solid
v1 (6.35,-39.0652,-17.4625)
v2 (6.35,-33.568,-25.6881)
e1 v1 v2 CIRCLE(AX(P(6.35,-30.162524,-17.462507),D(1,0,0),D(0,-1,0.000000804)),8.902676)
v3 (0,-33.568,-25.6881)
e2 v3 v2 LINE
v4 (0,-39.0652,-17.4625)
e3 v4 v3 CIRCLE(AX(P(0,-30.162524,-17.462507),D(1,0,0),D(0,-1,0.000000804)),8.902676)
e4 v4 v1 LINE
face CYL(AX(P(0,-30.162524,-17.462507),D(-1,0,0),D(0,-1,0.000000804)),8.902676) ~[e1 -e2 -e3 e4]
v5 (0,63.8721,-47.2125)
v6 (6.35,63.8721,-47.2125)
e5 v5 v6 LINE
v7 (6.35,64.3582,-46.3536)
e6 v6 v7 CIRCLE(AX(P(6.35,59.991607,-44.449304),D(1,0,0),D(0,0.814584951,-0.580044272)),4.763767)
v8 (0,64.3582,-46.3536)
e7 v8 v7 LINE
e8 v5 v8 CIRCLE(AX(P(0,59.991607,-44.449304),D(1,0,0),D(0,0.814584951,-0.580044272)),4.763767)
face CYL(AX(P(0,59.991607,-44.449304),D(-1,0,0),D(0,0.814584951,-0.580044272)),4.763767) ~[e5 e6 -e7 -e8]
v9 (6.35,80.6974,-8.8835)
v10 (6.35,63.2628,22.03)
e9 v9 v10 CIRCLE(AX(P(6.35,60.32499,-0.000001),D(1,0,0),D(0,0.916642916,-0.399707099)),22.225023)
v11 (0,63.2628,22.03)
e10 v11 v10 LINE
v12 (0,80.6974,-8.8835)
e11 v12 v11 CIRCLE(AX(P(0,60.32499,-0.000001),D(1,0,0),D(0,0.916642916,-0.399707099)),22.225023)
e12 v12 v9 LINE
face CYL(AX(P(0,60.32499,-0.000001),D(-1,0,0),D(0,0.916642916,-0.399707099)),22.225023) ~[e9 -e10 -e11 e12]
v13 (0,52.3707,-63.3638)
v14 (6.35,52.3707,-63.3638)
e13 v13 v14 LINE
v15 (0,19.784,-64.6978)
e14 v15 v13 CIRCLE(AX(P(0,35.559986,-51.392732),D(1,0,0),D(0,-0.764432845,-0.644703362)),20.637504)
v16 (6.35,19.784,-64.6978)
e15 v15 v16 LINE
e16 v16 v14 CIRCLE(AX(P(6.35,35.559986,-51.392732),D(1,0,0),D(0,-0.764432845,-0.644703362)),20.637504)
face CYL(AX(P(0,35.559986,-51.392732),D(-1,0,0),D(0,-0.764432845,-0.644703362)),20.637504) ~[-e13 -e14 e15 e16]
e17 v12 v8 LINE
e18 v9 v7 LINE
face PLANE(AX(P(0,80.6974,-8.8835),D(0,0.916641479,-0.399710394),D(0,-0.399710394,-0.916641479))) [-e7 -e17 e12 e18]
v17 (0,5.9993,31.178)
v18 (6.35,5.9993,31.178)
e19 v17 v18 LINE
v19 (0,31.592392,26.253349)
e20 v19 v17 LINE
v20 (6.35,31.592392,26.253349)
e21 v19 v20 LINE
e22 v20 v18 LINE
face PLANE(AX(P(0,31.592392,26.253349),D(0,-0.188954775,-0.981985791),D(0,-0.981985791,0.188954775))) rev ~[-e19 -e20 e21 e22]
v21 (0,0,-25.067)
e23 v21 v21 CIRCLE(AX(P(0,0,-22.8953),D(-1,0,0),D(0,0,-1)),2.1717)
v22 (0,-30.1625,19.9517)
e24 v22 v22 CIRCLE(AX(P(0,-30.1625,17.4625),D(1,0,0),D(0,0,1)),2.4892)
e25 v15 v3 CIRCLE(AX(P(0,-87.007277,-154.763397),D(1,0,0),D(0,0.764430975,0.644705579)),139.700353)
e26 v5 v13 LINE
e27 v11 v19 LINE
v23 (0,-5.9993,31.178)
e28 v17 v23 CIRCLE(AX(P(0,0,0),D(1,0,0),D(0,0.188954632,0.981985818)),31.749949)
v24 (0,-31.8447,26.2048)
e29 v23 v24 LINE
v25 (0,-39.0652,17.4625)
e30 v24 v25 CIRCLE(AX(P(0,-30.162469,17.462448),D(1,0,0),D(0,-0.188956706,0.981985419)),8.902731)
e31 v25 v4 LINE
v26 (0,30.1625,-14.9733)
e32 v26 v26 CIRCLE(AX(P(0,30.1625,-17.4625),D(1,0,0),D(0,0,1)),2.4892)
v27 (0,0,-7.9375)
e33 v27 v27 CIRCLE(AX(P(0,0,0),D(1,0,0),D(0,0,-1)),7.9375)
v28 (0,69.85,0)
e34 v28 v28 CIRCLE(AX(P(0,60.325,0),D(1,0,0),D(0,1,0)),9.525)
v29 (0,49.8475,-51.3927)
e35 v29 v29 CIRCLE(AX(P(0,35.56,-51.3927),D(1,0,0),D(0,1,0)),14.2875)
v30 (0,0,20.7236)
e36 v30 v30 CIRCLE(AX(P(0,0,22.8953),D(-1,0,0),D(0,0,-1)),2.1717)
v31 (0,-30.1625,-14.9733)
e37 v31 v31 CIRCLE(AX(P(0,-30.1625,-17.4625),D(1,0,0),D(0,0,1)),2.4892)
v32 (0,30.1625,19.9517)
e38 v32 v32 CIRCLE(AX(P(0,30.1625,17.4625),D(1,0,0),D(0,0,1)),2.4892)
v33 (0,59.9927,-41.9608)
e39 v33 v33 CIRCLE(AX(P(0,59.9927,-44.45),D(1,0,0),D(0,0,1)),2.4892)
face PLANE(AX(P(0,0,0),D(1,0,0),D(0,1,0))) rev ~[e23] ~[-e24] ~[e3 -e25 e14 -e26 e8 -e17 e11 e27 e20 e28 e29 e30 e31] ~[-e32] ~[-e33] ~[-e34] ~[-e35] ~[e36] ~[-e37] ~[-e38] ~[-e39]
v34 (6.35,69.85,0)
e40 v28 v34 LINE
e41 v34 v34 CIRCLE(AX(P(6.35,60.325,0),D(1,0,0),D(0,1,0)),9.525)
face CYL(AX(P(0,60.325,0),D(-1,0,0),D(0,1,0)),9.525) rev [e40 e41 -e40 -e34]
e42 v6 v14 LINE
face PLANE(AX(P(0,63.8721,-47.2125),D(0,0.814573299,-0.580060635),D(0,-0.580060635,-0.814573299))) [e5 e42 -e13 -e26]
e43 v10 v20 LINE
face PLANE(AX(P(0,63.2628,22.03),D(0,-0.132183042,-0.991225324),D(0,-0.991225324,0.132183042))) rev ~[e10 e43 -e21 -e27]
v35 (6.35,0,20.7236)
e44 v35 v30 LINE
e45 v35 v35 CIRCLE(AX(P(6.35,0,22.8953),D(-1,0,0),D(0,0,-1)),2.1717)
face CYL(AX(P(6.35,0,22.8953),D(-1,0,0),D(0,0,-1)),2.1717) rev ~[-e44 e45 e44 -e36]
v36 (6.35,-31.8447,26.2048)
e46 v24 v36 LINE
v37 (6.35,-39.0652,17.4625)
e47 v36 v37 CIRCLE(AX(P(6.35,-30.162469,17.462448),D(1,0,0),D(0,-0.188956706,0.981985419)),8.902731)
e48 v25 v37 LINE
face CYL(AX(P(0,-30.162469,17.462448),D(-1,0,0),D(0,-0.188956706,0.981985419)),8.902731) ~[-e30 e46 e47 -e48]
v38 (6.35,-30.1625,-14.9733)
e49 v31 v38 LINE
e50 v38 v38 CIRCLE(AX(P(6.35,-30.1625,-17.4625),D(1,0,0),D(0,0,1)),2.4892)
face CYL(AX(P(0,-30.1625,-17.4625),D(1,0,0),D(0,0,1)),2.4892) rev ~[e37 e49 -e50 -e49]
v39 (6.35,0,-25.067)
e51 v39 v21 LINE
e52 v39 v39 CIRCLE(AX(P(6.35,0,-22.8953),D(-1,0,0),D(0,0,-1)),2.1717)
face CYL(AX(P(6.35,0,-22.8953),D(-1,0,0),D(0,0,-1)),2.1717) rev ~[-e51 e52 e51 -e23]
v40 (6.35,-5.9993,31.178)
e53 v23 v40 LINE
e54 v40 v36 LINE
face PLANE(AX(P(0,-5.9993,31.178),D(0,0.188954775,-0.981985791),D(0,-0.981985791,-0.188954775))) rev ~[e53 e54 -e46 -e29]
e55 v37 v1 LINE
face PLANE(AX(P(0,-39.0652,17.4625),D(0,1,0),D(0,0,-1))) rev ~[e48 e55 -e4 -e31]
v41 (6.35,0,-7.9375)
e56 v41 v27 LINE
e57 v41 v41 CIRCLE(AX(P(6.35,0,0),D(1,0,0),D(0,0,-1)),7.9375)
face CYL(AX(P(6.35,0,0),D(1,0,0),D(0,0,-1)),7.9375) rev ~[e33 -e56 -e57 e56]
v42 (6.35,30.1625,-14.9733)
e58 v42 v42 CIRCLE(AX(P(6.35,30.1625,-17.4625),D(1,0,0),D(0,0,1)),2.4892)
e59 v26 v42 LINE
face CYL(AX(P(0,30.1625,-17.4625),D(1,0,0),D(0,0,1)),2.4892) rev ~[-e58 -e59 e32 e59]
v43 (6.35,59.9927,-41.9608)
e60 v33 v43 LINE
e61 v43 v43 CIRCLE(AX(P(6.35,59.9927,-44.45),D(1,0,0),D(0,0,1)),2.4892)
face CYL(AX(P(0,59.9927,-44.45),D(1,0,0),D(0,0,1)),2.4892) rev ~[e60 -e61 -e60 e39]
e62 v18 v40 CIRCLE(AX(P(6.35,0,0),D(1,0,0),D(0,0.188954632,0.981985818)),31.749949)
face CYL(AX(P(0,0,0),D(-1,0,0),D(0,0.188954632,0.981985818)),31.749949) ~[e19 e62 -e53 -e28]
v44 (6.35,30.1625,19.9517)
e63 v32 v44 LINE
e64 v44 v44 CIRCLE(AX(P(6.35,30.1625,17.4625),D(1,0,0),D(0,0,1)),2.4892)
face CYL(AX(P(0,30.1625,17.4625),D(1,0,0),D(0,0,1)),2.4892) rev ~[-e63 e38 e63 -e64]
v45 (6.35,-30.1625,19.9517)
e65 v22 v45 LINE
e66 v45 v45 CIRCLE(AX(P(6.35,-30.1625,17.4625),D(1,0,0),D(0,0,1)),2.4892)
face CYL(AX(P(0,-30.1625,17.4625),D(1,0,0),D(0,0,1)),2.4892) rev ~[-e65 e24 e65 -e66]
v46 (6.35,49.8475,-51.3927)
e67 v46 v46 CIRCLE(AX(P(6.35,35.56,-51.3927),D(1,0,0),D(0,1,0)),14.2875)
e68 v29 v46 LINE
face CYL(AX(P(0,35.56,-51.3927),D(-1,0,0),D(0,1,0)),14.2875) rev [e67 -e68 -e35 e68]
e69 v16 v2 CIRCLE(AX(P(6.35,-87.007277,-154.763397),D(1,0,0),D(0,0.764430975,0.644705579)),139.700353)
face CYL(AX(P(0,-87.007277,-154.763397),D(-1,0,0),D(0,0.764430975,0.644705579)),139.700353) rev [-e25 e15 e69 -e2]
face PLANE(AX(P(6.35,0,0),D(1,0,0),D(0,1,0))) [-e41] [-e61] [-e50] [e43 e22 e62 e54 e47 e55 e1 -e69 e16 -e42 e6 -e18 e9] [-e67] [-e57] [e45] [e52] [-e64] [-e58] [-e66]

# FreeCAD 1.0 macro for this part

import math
import FreeCAD as App
import Part
import Sketcher
Q = App.Units.Quantity

doc = App.newDocument("Part")
body = doc.addObject("PartDesign::Body", "Body")

# Sketch on YZ plane
sketch1 = body.newObject("Sketcher::SketchObject", "Sketch")
sketch1.AttachmentSupport = (doc.getObject("YZ_Plane"), [""])
sketch1.MapMode = "FlatFace"
sketch1.addGeometry([
    Part.ArcOfCircle(Part.Circle(App.Vector(60.3, 0, 0), App.Vector(0, 0, 1), 22.2), math.radians(-24), math.radians(82)),  # 0
    Part.LineSegment(App.Vector(63.3, 22, 0), App.Vector(31.6, 26.3, 0)),  # 1
    Part.LineSegment(App.Vector(31.6, 26.3, 0), App.Vector(6, 31.2, 0)),  # 2
    Part.ArcOfCircle(Part.Circle(App.Vector(0, 0, 0), App.Vector(0, 0, 1), 31.7), math.radians(79), math.radians(101)),  # 3
    Part.LineSegment(App.Vector(-6, 31.2, 0), App.Vector(-31.8, 26.2, 0)),  # 4
    Part.ArcOfCircle(Part.Circle(App.Vector(-30.2, 17.5, 0), App.Vector(0, 0, 1), 8.9), math.radians(101), math.radians(180)),  # 5
    Part.LineSegment(App.Vector(-39.1, 17.5, 0), App.Vector(-39.1, -17.5, 0)),  # 6
    Part.ArcOfCircle(Part.Circle(App.Vector(-30.2, -17.5, 0), App.Vector(0, 0, 1), 8.9), math.radians(180), math.radians(248)),  # 7
    Part.ArcOfCircle(Part.Circle(App.Vector(-87, -154.8, 0), App.Vector(0, 0, 1), 139.7), math.radians(40), math.radians(68)),  # 8
    Part.ArcOfCircle(Part.Circle(App.Vector(35.6, -51.4, 0), App.Vector(0, 0, 1), 20.6), math.radians(-140), math.radians(-35)),  # 9
    Part.LineSegment(App.Vector(52.4, -63.4, 0), App.Vector(63.9, -47.2, 0)),  # 10
    Part.ArcOfCircle(Part.Circle(App.Vector(60, -44.4, 0), App.Vector(0, 0, 1), 4.8), math.radians(-35.45), math.radians(-23.56)),  # 11
    Part.LineSegment(App.Vector(64.4, -46.4, 0), App.Vector(80.7, -8.9, 0)),  # 12
    Part.Circle(App.Vector(35.6, -51.4, 0), App.Vector(0, 0, 1), 14.3),  # 13
    Part.Circle(App.Vector(60.3, 0, 0), App.Vector(0, 0, 1), 9.5),  # 14
], False)
sketch1.addConstraint([
    Sketcher.Constraint("Tangent", 0, 2, 1, 1),
    Sketcher.Constraint("Coincident", 1, 2, 2, 1),
    Sketcher.Constraint("Tangent", 2, 2, 3, 1),
    Sketcher.Constraint("Tangent", 3, 2, 4, 1),
    Sketcher.Constraint("Tangent", 4, 2, 5, 1),
    Sketcher.Constraint("Tangent", 5, 2, 6, 1),
    Sketcher.Constraint("Tangent", 6, 2, 7, 1),
    Sketcher.Constraint("Tangent", 7, 2, 8, 2),
    Sketcher.Constraint("Tangent", 8, 1, 9, 1),
    Sketcher.Constraint("Tangent", 9, 2, 10, 1),
    Sketcher.Constraint("Tangent", 10, 2, 11, 1),
    Sketcher.Constraint("Tangent", 11, 2, 12, 1),
    Sketcher.Constraint("Tangent", 12, 2, 0, 1),
    Sketcher.Constraint("Vertical", 6),
    Sketcher.Constraint("Coincident", 3, 3, -1, 1),
    Sketcher.Constraint("Coincident", 13, 3, 9, 3),
    Sketcher.Constraint("Coincident", 14, 3, 0, 3),
    Sketcher.Constraint("Equal", 5, 7),
    Sketcher.Constraint("PointOnObject", 0, 3, -1),
    Sketcher.Constraint("Horizontal", 2, 2, 3, 2),
    Sketcher.Constraint("Radius", 8, Q("5.5 in")),
    Sketcher.Constraint("Diameter", 14, Q("0.75 in")),
    Sketcher.Constraint("Radius", 3, Q("1.25 in")),
    Sketcher.Constraint("Diameter", 13, Q("1.125 in")),
    Sketcher.Constraint("Radius", 0, Q("0.875 in")),
    Sketcher.Constraint("Radius", 9, Q("0.8125 in")),
    Sketcher.Constraint("DistanceX", -1, 1, 9, 3, Q("1.4 in")),
    Sketcher.Constraint("Radius", 5, Q("0.3505 in")),
    Sketcher.Constraint("DistanceY", 6, 2, 6, 1, Q("1.375 in")),
    Sketcher.Constraint("Angle", 12, Q("66.44 deg")),
    Sketcher.Constraint("Radius", 11, Q("4.7638 mm")),
    Sketcher.Constraint("DistanceX", -1, 1, 0, 3, Q("2.375 in")),
    Sketcher.Constraint("DistanceX", 5, 3, -1, 1, Q("1.1875 in")),
    Sketcher.Constraint("DistanceY", -1, 1, 5, 3, Q("0.6875 in")),
    Sketcher.Constraint("Distance", 1, Q("1.2579 in")),
    Sketcher.Constraint("DistanceY", 8, 3, 9, 3, Q("4.0697 in")),
    Sketcher.Constraint("DistanceY", 11, 3, 0, 2, Q("2.6173 in")),
])
pad1 = body.newObject("PartDesign::Pad", "Pad")
pad1.Profile = sketch1
pad1.Length = Q("0.25 in")

# Sketch on YZ plane
sketch2 = body.newObject("Sketcher::SketchObject", "Sketch001")
sketch2.AttachmentSupport = (doc.getObject("YZ_Plane"), [""])
sketch2.MapMode = "FlatFace"
sketch2.addGeometry([
    Part.Circle(App.Vector(60, -44.5, 0), App.Vector(0, 0, 1), 2.5),  # 0
    Part.Circle(App.Vector(30.2, 17.5, 0), App.Vector(0, 0, 1), 2.5),  # 1
    Part.Circle(App.Vector(30.2, -17.5, 0), App.Vector(0, 0, 1), 2.5),  # 2
    Part.Circle(App.Vector(-30.2, -17.5, 0), App.Vector(0, 0, 1), 2.5),  # 3
    Part.Circle(App.Vector(-30.2, 17.5, 0), App.Vector(0, 0, 1), 2.5),  # 4
], False)
sketch2.addConstraint([
    Sketcher.Constraint("Equal", 0, 1),
    Sketcher.Constraint("Equal", 1, 2),
    Sketcher.Constraint("Equal", 2, 3),
    Sketcher.Constraint("Equal", 3, 4),
    Sketcher.Constraint("Symmetric", 1, 3, 3, 3, -1, 1),
    Sketcher.Constraint("Symmetric", 2, 3, 4, 3, -1, 1),
    Sketcher.Constraint("Symmetric", 2, 3, 3, 3, -2),
    Sketcher.Constraint("Diameter", 0, Q("0.196 in")),
    Sketcher.Constraint("DistanceY", 0, 3, -1, 1, Q("1.75 in")),
    Sketcher.Constraint("DistanceX", -1, 1, 1, 3, Q("1.1875 in")),
    Sketcher.Constraint("DistanceY", -1, 1, 1, 3, Q("0.6875 in")),
    Sketcher.Constraint("DistanceX", -1, 1, 0, 3, Q("59.9927 mm")),
])
doc.recompute()
hole = body.newObject("PartDesign::Hole", "Hole")
hole.Profile = sketch2
hole.ThreadType = "None"
hole.Diameter = Q("0.196 in")
hole.DepthType = "ThroughAll"
hole.Reversed = True

# Sketch on YZ plane
sketch3 = body.newObject("Sketcher::SketchObject", "Sketch002")
sketch3.AttachmentSupport = (doc.getObject("YZ_Plane"), [""])
sketch3.MapMode = "FlatFace"
sketch3.AttachmentOffset = App.Placement(App.Vector(0, 0, 0.25 * 25.4), App.Rotation())
sketch3.addGeometry(Part.Circle(App.Vector(0, 0, 0), App.Vector(0, 0, 1), 8), False)
sketch3.addConstraint([
    Sketcher.Constraint("Coincident", 0, 3, -1, 1),
    Sketcher.Constraint("Diameter", 0, Q("0.625 in")),
])
pocket1 = body.newObject("PartDesign::Pocket", "Pocket")
pocket1.Profile = sketch3
pocket1.Length = Q("0.25 in")

# Sketch on YZ plane
sketch4 = body.newObject("Sketcher::SketchObject", "Sketch003")
sketch4.AttachmentSupport = (doc.getObject("YZ_Plane"), [""])
sketch4.MapMode = "FlatFace"
sketch4.AttachmentOffset = App.Placement(App.Vector(0, 0, 0.25 * 25.4), App.Rotation())
sketch4.addGeometry([
    Part.Circle(App.Vector(0, 22.9, 0), App.Vector(0, 0, 1), 2.2),
    Part.Circle(App.Vector(0, -22.9, 0), App.Vector(0, 0, 1), 2.2),
], False)
sketch4.addConstraint([
    Sketcher.Constraint("Equal", 0, 1),
    Sketcher.Constraint("Symmetric", 0, 3, 1, 3, -1, 1),
    Sketcher.Constraint("PointOnObject", 0, 3, -2),
    Sketcher.Constraint("Diameter", 0, Q("0.171 in")),
    Sketcher.Constraint("DistanceY", -1, 1, 0, 3, Q("0.9014 in")),
])
doc.recompute()
hole2 = body.newObject("PartDesign::Hole", "Hole001")
hole2.Profile = sketch4
hole2.ThreadType = "None"
hole2.Diameter = Q("0.171 in")
hole2.DepthType = "ThroughAll"

doc.recompute()
